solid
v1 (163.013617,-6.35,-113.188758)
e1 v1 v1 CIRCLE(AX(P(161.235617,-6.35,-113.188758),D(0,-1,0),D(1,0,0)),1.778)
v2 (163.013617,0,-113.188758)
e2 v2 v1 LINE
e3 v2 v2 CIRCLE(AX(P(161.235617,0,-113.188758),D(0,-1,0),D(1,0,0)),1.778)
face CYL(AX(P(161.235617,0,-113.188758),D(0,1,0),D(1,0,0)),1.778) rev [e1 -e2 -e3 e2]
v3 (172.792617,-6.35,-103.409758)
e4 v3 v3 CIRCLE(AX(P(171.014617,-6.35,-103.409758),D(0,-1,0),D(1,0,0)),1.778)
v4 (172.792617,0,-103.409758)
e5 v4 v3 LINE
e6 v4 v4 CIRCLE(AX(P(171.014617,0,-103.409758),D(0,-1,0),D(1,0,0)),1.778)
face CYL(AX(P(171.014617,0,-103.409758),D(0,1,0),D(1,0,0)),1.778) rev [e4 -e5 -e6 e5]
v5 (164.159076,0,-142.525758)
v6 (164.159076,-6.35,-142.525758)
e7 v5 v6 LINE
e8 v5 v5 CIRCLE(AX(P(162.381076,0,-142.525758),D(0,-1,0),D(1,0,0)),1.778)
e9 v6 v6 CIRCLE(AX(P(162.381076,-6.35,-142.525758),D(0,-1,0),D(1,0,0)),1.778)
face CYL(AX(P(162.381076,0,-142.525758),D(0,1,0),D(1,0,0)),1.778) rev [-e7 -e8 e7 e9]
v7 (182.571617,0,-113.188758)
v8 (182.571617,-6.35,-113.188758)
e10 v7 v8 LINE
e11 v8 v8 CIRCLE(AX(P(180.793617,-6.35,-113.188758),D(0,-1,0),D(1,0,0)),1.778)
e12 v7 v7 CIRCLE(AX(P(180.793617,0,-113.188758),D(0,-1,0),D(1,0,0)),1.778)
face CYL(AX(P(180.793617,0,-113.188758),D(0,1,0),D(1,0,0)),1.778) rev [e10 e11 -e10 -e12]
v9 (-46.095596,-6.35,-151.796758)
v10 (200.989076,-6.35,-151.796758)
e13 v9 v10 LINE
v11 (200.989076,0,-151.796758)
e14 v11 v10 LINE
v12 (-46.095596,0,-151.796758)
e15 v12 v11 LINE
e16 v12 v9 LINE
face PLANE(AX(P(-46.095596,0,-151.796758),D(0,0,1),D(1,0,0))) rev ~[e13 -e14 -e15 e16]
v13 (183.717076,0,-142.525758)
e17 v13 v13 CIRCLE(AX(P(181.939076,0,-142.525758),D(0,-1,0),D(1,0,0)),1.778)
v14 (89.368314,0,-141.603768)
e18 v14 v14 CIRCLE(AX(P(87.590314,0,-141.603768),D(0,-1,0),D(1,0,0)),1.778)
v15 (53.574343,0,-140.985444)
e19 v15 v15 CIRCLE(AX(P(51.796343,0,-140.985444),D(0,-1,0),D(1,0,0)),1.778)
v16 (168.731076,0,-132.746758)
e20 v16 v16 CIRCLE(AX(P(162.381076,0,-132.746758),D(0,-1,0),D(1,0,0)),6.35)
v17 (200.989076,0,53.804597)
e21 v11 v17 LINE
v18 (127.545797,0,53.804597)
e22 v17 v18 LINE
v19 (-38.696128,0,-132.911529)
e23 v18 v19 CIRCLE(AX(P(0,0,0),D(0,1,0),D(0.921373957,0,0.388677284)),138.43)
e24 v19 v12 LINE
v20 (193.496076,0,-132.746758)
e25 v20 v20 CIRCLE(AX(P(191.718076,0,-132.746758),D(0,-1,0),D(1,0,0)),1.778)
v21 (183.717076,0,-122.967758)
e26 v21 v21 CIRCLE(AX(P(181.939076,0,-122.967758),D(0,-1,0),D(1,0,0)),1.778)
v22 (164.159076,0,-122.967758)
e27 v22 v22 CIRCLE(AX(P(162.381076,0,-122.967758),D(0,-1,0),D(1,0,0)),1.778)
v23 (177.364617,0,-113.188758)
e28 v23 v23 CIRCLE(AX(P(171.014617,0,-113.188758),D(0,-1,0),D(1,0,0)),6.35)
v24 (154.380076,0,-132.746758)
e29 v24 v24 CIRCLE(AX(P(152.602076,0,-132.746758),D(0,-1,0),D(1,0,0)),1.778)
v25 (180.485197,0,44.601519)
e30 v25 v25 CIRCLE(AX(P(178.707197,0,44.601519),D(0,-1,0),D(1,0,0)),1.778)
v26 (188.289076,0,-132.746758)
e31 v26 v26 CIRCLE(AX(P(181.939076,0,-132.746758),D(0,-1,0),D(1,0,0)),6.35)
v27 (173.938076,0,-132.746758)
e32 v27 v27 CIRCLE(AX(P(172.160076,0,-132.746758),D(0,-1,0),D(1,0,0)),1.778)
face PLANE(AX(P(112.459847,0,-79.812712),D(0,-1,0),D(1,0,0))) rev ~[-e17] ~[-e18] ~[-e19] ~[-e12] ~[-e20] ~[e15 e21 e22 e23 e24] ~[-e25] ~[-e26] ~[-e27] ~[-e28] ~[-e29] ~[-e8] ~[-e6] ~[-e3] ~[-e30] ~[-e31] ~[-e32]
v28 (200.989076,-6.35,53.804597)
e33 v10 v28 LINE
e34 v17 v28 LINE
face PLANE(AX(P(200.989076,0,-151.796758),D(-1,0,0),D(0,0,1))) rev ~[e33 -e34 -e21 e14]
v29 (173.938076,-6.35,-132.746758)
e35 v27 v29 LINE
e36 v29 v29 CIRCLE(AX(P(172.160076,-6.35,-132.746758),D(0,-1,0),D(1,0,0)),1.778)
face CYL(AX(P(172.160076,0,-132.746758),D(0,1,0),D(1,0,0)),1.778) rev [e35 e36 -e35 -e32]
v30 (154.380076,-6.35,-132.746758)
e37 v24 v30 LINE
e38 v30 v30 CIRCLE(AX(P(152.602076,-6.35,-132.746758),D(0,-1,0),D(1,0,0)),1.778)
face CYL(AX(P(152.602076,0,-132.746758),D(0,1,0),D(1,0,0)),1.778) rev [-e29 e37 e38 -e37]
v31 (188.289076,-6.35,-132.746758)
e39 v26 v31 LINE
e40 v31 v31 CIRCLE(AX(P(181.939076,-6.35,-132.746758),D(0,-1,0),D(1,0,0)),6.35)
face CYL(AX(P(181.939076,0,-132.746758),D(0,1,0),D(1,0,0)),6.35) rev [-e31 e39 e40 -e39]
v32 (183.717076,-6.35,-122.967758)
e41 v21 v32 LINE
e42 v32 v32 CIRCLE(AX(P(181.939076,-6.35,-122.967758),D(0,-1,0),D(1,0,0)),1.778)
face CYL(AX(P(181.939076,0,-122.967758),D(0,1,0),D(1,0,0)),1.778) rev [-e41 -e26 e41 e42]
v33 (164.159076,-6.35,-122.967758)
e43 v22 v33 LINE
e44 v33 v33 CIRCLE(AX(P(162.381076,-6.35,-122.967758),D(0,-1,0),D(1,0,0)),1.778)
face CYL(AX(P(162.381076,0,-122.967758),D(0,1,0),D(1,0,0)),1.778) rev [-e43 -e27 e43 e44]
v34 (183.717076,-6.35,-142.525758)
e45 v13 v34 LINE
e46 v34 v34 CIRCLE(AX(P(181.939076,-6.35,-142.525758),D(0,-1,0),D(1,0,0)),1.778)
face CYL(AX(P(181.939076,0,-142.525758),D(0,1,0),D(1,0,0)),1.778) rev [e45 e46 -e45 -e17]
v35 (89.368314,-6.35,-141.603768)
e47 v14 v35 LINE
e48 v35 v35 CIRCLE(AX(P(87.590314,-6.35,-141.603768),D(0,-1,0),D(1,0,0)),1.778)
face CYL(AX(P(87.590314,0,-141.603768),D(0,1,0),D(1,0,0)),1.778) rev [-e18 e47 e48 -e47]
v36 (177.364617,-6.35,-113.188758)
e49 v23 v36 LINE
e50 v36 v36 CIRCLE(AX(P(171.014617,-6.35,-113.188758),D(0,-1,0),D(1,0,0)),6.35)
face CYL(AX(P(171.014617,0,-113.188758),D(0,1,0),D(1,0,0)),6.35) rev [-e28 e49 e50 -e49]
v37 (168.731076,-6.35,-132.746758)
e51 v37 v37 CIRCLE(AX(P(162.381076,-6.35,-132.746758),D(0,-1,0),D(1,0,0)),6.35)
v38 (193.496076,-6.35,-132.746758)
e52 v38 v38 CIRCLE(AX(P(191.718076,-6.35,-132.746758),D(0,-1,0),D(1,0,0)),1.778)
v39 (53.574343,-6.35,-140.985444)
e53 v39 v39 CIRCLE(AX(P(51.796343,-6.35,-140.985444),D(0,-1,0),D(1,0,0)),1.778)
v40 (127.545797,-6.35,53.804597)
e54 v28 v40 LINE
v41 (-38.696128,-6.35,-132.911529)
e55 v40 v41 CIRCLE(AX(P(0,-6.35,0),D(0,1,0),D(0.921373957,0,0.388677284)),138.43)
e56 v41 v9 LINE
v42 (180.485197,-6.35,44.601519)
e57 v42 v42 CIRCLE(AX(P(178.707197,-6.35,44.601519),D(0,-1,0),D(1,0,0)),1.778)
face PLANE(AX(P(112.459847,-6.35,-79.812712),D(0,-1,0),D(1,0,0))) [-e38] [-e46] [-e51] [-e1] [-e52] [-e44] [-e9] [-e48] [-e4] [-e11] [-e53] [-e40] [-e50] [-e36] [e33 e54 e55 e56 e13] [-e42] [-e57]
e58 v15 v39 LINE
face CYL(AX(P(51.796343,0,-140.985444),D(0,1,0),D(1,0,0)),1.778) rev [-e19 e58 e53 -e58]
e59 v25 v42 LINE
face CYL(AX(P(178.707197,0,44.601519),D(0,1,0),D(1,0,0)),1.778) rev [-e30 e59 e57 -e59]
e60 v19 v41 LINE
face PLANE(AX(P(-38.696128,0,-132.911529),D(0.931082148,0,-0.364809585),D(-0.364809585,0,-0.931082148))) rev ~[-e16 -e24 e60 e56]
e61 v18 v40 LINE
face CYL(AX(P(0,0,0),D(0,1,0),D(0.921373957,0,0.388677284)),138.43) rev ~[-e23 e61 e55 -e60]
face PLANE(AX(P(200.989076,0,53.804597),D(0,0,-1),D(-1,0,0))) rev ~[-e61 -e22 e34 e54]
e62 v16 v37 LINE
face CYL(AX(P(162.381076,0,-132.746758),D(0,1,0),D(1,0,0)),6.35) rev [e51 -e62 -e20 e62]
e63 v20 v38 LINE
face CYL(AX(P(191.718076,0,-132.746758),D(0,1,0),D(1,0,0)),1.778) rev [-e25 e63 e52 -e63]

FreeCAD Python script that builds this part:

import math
import FreeCAD as App
import Part
import Sketcher
from FreeCAD import Vector
Q = App.Units.Quantity

doc = App.newDocument("Part")
body = doc.addObject("PartDesign::Body", "Body")

sketch1 = body.newObject("Sketcher::SketchObject", "Sketch")
sketch1.AttachmentSupport = (doc.getObject("XZ_Plane"), [""])
sketch1.MapMode = "FlatFace"
sketch1.addGeometry([
    Part.ArcOfCircle(Part.Circle(Vector(0, 0, 0), Vector(0, 0, 1), 138.4), math.radians(-106), math.radians(23)),
    Part.LineSegment(Vector(-38.7, -132.9, 0), Vector(-46.1, -151.8, 0)),
    Part.LineSegment(Vector(-46.1, -151.8, 0), Vector(201, -151.8, 0)),
    Part.LineSegment(Vector(201, -151.8, 0), Vector(201, 53.8, 0)),
    Part.LineSegment(Vector(201, 53.8, 0), Vector(127.5, 53.8, 0)),
    Part.Circle(Vector(51.8, -141, 0), Vector(0, 0, 1), 1.8),
    Part.Circle(Vector(87.6, -141.6, 0), Vector(0, 0, 1), 1.8),
    Part.Circle(Vector(152.6, -132.7, 0), Vector(0, 0, 1), 1.8),
    Part.Circle(Vector(162.4, -142.5, 0), Vector(0, 0, 1), 1.8),
    Part.Circle(Vector(162.4, -132.7, 0), Vector(0, 0, 1), 6.3),
    Part.Circle(Vector(172.2, -132.7, 0), Vector(0, 0, 1), 1.8),
    Part.Circle(Vector(162.4, -123, 0), Vector(0, 0, 1), 1.8),
    Part.Circle(Vector(181.9, -142.5, 0), Vector(0, 0, 1), 1.8),
    Part.Circle(Vector(181.9, -132.7, 0), Vector(0, 0, 1), 6.3),
    Part.Circle(Vector(191.7, -132.7, 0), Vector(0, 0, 1), 1.8),
    Part.Circle(Vector(181.9, -123, 0), Vector(0, 0, 1), 1.8),
    Part.Circle(Vector(161.2, -113.2, 0), Vector(0, 0, 1), 1.8),
    Part.Circle(Vector(171, -113.2, 0), Vector(0, 0, 1), 6.3),
    Part.Circle(Vector(171, -103.4, 0), Vector(0, 0, 1), 1.8),
    Part.Circle(Vector(180.8, -113.2, 0), Vector(0, 0, 1), 1.8),
    Part.Circle(Vector(178.7, 44.6, 0), Vector(0, 0, 1), 1.8),
], False)
sketch1.addConstraint([
    Sketcher.Constraint("Coincident", 0, 1, 1, 1),
    Sketcher.Constraint("Coincident", 1, 2, 2, 1),
    Sketcher.Constraint("Coincident", 2, 2, 3, 1),
    Sketcher.Constraint("Coincident", 3, 2, 4, 1),
    Sketcher.Constraint("Coincident", 4, 2, 0, 2),
    Sketcher.Constraint("Horizontal", 2),
    Sketcher.Constraint("Vertical", 3),
    Sketcher.Constraint("Horizontal", 4),
    Sketcher.Constraint("Coincident", 0, 3, -1, 1),
    Sketcher.Constraint("Equal", 5, 6),
    Sketcher.Constraint("Equal", 6, 7),
    Sketcher.Constraint("Equal", 7, 8),
    Sketcher.Constraint("Equal", 8, 10),
    Sketcher.Constraint("Equal", 10, 11),
    Sketcher.Constraint("Equal", 11, 12),
    Sketcher.Constraint("Equal", 9, 13),
    Sketcher.Constraint("Equal", 12, 14),
    Sketcher.Constraint("Equal", 14, 15),
    Sketcher.Constraint("Equal", 15, 16),
    Sketcher.Constraint("Equal", 13, 17),
    Sketcher.Constraint("Equal", 16, 18),
    Sketcher.Constraint("Equal", 18, 19),
    Sketcher.Constraint("Equal", 19, 20),
    Sketcher.Constraint("Horizontal", 7, 3, 9, 3),
    Sketcher.Constraint("Horizontal", 9, 3, 10, 3),
    Sketcher.Constraint("Horizontal", 8, 3, 12, 3),
    Sketcher.Constraint("Horizontal", 10, 3, 13, 3),
    Sketcher.Constraint("Horizontal", 13, 3, 14, 3),
    Sketcher.Constraint("Horizontal", 11, 3, 15, 3),
    Sketcher.Constraint("Horizontal", 16, 3, 17, 3),
    Sketcher.Constraint("Horizontal", 17, 3, 19, 3),
    Sketcher.Constraint("Vertical", 8, 3, 9, 3),
    Sketcher.Constraint("Vertical", 9, 3, 11, 3),
    Sketcher.Constraint("Vertical", 12, 3, 13, 3),
    Sketcher.Constraint("Vertical", 13, 3, 15, 3),
    Sketcher.Constraint("Vertical", 17, 3, 18, 3),
    Sketcher.Constraint("Diameter", 9, Q("0.5 in")),
    Sketcher.Constraint("Diameter", 5, Q("0.14 in")),
    Sketcher.Constraint("Radius", 0, Q("5.45 in")),
    Sketcher.Constraint("DistanceX", 7, 3, 10, 3, Q("0.77 in")),
    Sketcher.Constraint("DistanceY", 8, 3, 11, 3, Q("0.77 in")),
    Sketcher.Constraint("DistanceX", 8, 3, 12, 3, Q("0.77 in")),
    Sketcher.Constraint("DistanceX", 10, 3, 14, 3, Q("0.77 in")),
    Sketcher.Constraint("DistanceY", 9, 3, 16, 3, Q("0.77 in")),
    Sketcher.Constraint("DistanceY", 11, 3, 18, 3, Q("0.77 in")),
    Sketcher.Constraint("DistanceX", 16, 3, 19, 3, Q("0.77 in")),
    Sketcher.Constraint("DistanceY", 1, 2, 7, 3, Q("0.75 in")),
    Sketcher.Constraint("DistanceX", 12, 3, 2, 2, Q("0.75 in")),
    Sketcher.Constraint("DistanceX", 7, 3, 8, 3, Q("0.385 in")),
    Sketcher.Constraint("DistanceY", 8, 3, 7, 3, Q("0.385 in")),
    Sketcher.Constraint("DistanceX", 16, 3, 17, 3, Q("0.385 in")),
    Sketcher.Constraint("DistanceX", 4, 2, 4, 1, Q("73.443279 mm")),
    Sketcher.Constraint("DistanceX", 4, 2, 20, 3, Q("51.1614 mm")),
    Sketcher.Constraint("DistanceX", 2, 1, 2, 2, Q("247.084672 mm")),
    Sketcher.Constraint("DistanceY", 3, 1, 3, 2, Q("205.601355 mm")),
    Sketcher.Constraint("DistanceY", 6, 3, -1, 1, Q("141.603768 mm")),
    Sketcher.Constraint("DistanceY", 7, 3, -1, 1, Q("132.746758 mm")),
    Sketcher.Constraint("DistanceY", -1, 1, 20, 3, Q("44.601519 mm")),
    Sketcher.Constraint("DistanceX", 0, 1, -1, 1, Q("38.696128 mm")),
    Sketcher.Constraint("DistanceX", 5, 3, 6, 3, Q("35.793971 mm")),
    Sketcher.Constraint("DistanceX", 6, 3, 8, 3, Q("74.790762 mm")),
    Sketcher.Constraint("DistanceX", 16, 3, 11, 3, Q("1.145459 mm")),
    Sketcher.Constraint("DistanceY", 5, 3, -1, 1, Q("140.985444 mm")),
])
pad1 = body.newObject("PartDesign::Pad", "Pad")
pad1.Profile = sketch1
pad1.Length = Q("0.25 in")

doc.recompute()
